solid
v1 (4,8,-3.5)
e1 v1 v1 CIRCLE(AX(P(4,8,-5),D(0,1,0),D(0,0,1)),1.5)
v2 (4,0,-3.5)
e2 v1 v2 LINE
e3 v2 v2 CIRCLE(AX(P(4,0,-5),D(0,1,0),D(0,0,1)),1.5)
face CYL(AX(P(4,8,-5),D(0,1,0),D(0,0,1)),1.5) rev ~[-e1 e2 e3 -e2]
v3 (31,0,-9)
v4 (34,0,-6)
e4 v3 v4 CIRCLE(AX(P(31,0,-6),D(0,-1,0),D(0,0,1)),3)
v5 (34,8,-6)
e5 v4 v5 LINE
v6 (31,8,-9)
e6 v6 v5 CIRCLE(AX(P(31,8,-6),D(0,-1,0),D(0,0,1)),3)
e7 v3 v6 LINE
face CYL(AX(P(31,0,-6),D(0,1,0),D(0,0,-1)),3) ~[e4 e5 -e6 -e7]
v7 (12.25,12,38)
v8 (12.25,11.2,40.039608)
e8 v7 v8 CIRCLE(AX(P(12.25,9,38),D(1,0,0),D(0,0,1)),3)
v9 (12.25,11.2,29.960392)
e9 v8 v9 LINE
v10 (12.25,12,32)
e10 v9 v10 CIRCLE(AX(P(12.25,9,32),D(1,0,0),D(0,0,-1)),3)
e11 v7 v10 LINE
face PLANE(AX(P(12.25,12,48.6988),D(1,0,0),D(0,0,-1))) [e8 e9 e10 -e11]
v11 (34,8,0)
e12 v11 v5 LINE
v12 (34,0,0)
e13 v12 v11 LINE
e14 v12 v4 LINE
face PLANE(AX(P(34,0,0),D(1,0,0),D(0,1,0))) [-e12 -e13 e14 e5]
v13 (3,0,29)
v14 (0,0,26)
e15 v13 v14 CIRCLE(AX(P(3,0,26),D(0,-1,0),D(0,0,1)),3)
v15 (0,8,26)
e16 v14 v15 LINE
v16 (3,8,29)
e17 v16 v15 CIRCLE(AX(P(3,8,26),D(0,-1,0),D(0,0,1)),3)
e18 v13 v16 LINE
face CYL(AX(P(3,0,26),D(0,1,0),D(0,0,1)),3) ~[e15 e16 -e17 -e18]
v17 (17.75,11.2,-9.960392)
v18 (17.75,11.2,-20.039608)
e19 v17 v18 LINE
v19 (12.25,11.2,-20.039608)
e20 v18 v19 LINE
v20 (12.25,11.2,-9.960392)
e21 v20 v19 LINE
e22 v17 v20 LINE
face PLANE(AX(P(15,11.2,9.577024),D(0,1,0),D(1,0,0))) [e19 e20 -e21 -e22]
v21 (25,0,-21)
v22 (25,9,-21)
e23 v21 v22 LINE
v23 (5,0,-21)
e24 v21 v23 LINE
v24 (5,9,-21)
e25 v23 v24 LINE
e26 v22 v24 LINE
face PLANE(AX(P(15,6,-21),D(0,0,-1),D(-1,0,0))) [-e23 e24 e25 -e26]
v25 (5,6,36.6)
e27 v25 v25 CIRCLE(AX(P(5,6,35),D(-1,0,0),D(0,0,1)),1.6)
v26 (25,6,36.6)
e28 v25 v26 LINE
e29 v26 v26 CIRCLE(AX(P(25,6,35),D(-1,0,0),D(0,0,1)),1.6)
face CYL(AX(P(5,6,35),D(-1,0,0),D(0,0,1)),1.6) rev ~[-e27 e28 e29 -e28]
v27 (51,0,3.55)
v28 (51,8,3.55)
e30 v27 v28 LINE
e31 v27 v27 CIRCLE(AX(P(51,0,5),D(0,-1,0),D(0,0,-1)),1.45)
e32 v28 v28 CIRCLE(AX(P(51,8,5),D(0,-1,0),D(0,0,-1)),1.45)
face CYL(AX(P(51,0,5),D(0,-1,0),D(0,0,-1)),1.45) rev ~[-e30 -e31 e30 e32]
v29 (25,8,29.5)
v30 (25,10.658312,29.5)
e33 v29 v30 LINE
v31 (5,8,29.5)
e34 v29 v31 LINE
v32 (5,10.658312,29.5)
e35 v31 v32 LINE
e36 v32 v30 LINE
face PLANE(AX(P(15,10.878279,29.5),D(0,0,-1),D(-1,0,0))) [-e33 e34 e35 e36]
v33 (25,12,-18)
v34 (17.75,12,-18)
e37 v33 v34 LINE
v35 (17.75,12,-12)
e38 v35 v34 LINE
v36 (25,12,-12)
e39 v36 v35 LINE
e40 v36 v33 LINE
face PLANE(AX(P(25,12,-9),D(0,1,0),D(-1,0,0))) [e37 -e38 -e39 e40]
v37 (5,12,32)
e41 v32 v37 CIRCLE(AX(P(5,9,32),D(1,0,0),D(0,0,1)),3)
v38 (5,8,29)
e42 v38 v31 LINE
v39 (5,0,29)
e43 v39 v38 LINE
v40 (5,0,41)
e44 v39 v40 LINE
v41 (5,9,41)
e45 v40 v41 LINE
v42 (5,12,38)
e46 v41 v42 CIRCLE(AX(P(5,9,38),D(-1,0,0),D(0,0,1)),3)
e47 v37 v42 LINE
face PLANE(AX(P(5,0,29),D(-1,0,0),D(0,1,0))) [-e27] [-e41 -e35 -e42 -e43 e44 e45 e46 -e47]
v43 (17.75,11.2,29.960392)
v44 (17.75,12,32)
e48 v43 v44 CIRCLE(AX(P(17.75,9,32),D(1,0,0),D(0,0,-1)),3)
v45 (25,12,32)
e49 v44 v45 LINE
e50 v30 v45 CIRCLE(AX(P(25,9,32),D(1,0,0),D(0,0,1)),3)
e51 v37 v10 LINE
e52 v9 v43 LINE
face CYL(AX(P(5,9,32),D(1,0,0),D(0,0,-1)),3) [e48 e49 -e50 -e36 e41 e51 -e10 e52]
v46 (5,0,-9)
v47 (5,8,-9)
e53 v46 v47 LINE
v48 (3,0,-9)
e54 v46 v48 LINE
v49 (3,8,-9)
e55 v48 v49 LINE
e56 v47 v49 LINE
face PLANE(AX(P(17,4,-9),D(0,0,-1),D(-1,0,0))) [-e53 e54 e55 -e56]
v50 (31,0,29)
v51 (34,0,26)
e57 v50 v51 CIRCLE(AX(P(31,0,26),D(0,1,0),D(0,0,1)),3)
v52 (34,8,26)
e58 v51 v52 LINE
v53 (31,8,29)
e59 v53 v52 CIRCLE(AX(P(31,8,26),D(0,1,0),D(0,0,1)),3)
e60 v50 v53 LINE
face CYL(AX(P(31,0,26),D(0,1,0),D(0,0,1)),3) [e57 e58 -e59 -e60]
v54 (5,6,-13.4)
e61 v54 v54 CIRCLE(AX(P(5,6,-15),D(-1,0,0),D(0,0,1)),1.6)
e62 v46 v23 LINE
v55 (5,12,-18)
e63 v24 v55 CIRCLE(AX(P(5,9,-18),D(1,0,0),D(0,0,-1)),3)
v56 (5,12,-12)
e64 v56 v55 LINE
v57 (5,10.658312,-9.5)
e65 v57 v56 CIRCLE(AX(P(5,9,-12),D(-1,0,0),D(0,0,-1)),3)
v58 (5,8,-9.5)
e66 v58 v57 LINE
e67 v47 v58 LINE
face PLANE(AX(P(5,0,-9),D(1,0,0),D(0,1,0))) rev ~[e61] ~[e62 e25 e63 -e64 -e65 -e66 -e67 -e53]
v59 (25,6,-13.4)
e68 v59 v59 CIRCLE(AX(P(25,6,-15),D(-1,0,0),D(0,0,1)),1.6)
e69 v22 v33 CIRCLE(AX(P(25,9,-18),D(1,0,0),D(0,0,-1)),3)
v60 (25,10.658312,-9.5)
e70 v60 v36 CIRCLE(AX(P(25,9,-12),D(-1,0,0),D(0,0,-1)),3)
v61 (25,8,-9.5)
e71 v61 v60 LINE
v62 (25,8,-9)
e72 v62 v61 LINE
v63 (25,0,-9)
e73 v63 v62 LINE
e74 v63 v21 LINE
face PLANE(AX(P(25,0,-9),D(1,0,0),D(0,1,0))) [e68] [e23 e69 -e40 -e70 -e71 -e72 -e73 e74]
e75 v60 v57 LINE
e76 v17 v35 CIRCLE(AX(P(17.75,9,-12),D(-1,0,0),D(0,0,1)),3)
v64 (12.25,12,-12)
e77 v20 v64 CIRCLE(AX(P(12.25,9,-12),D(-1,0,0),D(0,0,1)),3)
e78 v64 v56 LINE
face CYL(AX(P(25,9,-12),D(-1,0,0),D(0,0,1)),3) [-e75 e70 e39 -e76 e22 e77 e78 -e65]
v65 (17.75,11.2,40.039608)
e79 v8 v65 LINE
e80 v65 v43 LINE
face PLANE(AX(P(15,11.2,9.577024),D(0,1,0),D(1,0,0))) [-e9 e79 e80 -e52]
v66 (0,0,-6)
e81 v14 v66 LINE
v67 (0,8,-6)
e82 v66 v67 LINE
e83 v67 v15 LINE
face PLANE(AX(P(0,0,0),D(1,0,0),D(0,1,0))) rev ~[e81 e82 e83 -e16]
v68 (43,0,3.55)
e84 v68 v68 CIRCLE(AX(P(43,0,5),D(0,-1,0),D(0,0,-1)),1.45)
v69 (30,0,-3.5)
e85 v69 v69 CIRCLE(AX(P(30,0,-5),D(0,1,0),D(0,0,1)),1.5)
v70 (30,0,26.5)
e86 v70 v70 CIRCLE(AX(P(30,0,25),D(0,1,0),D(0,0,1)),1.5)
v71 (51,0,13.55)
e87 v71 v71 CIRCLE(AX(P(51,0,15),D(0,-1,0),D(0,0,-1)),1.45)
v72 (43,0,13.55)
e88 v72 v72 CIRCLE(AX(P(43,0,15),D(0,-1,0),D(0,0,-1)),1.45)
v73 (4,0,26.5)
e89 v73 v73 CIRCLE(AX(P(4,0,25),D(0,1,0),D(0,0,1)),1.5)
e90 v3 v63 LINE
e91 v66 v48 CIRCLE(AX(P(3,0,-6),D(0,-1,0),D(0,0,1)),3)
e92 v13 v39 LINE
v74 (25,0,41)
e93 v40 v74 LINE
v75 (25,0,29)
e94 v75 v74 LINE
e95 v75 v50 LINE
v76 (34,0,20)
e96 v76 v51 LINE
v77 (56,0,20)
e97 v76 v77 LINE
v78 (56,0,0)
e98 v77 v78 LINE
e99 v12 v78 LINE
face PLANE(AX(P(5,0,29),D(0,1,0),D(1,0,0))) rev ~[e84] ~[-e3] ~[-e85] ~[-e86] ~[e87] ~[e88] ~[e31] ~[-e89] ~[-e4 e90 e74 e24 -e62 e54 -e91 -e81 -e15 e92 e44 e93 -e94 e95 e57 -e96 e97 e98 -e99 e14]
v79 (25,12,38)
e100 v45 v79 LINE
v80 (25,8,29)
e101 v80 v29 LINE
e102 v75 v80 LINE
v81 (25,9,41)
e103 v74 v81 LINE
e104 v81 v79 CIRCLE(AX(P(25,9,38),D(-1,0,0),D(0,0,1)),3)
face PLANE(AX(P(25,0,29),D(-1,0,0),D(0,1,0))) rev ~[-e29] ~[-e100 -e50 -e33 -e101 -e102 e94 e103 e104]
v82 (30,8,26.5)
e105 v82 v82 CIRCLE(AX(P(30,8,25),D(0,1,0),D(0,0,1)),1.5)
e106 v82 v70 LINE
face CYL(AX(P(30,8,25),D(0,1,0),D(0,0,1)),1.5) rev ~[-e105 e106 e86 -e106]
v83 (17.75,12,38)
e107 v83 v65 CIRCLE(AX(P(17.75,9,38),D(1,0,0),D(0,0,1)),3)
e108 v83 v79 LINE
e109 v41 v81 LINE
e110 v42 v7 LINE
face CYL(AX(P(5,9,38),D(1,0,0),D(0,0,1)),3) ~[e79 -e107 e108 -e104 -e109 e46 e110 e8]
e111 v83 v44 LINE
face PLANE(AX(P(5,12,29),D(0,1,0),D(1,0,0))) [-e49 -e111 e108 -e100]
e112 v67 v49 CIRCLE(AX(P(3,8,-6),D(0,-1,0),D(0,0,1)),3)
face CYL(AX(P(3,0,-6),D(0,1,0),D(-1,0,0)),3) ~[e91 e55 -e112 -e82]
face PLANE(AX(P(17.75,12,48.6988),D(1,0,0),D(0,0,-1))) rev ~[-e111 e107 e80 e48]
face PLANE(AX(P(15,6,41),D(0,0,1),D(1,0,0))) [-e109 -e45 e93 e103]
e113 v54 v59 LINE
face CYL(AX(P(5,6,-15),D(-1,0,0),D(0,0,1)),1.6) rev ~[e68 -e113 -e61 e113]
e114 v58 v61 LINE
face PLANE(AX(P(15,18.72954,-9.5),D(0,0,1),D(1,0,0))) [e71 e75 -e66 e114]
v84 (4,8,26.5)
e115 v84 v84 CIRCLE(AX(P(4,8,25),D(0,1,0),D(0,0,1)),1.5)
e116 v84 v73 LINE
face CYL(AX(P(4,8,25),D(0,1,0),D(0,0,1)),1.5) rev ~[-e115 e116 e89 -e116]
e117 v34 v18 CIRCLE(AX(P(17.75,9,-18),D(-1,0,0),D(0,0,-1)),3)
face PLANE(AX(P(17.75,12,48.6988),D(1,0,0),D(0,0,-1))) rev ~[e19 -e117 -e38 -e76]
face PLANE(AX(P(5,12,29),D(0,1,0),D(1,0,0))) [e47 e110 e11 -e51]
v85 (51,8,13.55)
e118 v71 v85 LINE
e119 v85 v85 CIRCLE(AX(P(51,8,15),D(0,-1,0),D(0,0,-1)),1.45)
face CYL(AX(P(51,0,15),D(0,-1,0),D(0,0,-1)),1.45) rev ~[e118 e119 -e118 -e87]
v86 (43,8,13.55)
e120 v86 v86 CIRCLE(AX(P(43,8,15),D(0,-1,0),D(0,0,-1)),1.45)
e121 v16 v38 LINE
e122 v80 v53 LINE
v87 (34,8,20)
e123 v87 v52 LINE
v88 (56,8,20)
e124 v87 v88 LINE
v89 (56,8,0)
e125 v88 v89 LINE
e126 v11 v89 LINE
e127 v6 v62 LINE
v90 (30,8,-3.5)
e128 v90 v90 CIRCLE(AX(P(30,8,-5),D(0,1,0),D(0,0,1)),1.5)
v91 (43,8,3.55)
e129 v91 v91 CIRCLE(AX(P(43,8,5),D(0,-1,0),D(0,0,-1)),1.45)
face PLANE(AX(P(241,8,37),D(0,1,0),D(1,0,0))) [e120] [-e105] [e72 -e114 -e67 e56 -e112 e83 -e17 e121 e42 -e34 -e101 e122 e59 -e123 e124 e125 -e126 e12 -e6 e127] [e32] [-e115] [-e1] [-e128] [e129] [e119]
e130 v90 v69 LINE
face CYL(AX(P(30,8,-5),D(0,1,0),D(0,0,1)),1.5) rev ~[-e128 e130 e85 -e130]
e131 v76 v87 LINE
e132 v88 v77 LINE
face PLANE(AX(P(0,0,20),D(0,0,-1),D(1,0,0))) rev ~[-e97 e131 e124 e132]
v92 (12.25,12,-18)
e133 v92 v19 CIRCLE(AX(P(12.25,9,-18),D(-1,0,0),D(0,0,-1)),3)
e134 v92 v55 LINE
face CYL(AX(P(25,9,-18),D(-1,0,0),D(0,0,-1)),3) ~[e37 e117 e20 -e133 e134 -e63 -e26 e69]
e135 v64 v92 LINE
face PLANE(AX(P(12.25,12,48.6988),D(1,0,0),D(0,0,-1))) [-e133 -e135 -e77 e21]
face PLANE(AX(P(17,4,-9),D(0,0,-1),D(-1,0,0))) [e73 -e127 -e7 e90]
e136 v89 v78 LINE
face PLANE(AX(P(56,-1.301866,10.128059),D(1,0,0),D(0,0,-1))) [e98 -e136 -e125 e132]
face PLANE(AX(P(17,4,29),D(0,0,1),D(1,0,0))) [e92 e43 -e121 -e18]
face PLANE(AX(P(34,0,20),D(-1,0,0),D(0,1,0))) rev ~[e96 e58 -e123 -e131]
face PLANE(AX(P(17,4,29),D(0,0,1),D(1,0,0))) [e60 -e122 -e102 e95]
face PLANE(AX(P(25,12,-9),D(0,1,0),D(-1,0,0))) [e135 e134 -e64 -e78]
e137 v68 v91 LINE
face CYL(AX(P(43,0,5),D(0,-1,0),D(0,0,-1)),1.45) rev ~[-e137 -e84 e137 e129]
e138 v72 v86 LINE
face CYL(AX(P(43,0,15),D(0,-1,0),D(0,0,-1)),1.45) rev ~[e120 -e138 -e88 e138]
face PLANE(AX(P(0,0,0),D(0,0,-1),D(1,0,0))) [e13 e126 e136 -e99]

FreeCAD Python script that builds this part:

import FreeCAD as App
import Part
import Sketcher


def edges_at(feature, points):
    """Names of the edges that pass closest to the given points."""
    edges = feature.Shape.Edges
    near = lambda p: min(range(len(edges)), key=lambda i: edges[i].distToShape(Part.Vertex(*p))[0])
    return sorted({f"Edge{near(p) + 1}" for p in points})

doc = App.newDocument("Part")
body = doc.addObject("PartDesign::Body", "Body")

sketch1 = body.newObject("Sketcher::SketchObject", "Sketch")
sketch1.AttachmentSupport = (doc.getObject("XZ_Plane"), [""])
sketch1.MapMode = "FlatFace"
sketch1.addGeometry(Part.LineSegment(App.Vector(0, 0, 0), App.Vector(0, 20, 0)), False)
sketch1.addGeometry(Part.LineSegment(App.Vector(0, 20, 0), App.Vector(300, 20, 0)), False)
sketch1.addGeometry(Part.LineSegment(App.Vector(300, 20, 0), App.Vector(300, 0, 0)), False)
sketch1.addGeometry(Part.LineSegment(App.Vector(300, 0, 0), App.Vector(0, 0, 0)), False)
sketch1.addConstraint(Sketcher.Constraint("Coincident", 0, 2, 1, 1))
sketch1.addConstraint(Sketcher.Constraint("Coincident", 1, 2, 2, 1))
sketch1.addConstraint(Sketcher.Constraint("Coincident", 2, 2, 3, 1))
sketch1.addConstraint(Sketcher.Constraint("Coincident", 3, 2, 0, 1))
sketch1.addConstraint(Sketcher.Constraint("Vertical", 0))
sketch1.addConstraint(Sketcher.Constraint("Horizontal", 1))
sketch1.addConstraint(Sketcher.Constraint("Vertical", 2))
sketch1.addConstraint(Sketcher.Constraint("Horizontal", 3))
sketch1.addConstraint(Sketcher.Constraint("Coincident", 3, 2, -1, 1))
sketch1.addConstraint(Sketcher.Constraint("DistanceX", 1, 1, 1, 2, 300.0))
sketch1.addConstraint(Sketcher.Constraint("DistanceY", 0, 1, 0, 2, 20.0))
pad1 = body.newObject("PartDesign::Pad", "Pad")
pad1.Profile = sketch1
pad1.Length = 8
pad1.Reversed = True

sketch2 = body.newObject("Sketcher::SketchObject", "Sketch001")
sketch2.AttachmentSupport = (doc.getObject("XY_Plane"), [""])
sketch2.MapMode = "FlatFace"
sketch2.AttachmentOffset = App.Placement(App.Vector(0, 0, 20), App.Rotation())
sketch2.addGeometry(Part.LineSegment(App.Vector(0, 8, 0), App.Vector(0, 0, 0)), False)
sketch2.addGeometry(Part.LineSegment(App.Vector(0, 0, 0), App.Vector(34, 0, 0)), False)
sketch2.addGeometry(Part.LineSegment(App.Vector(34, 0, 0), App.Vector(34, 8, 0)), False)
sketch2.addGeometry(Part.LineSegment(App.Vector(34, 8, 0), App.Vector(0, 8, 0)), False)
sketch2.addGeometry(Part.LineSegment(App.Vector(266, 8, 0), App.Vector(266, 0, 0)), False)
sketch2.addGeometry(Part.LineSegment(App.Vector(266, 0, 0), App.Vector(300, 0, 0)), False)
sketch2.addGeometry(Part.LineSegment(App.Vector(300, 0, 0), App.Vector(300, 8, 0)), False)
sketch2.addGeometry(Part.LineSegment(App.Vector(300, 8, 0), App.Vector(266, 8, 0)), False)
sketch2.addConstraint(Sketcher.Constraint("Coincident", 0, 2, 1, 1))
sketch2.addConstraint(Sketcher.Constraint("Coincident", 1, 2, 2, 1))
sketch2.addConstraint(Sketcher.Constraint("Coincident", 2, 2, 3, 1))
sketch2.addConstraint(Sketcher.Constraint("Coincident", 3, 2, 0, 1))
sketch2.addConstraint(Sketcher.Constraint("Coincident", 4, 2, 5, 1))
sketch2.addConstraint(Sketcher.Constraint("Coincident", 5, 2, 6, 1))
sketch2.addConstraint(Sketcher.Constraint("Coincident", 6, 2, 7, 1))
sketch2.addConstraint(Sketcher.Constraint("Coincident", 7, 2, 4, 1))
sketch2.addConstraint(Sketcher.Constraint("Vertical", 0))
sketch2.addConstraint(Sketcher.Constraint("Horizontal", 1))
sketch2.addConstraint(Sketcher.Constraint("Vertical", 2))
sketch2.addConstraint(Sketcher.Constraint("Horizontal", 3))
sketch2.addConstraint(Sketcher.Constraint("Vertical", 4))
sketch2.addConstraint(Sketcher.Constraint("Horizontal", 5))
sketch2.addConstraint(Sketcher.Constraint("Vertical", 6))
sketch2.addConstraint(Sketcher.Constraint("Horizontal", 7))
sketch2.addConstraint(Sketcher.Constraint("Coincident", 0, 2, -1, 1))
sketch2.addConstraint(Sketcher.Constraint("PointOnObject", 4, 2, -1))
sketch2.addConstraint(Sketcher.Constraint("Horizontal", 3, 2, 6, 2))
sketch2.addConstraint(Sketcher.Constraint("Equal", 3, 5))
sketch2.addConstraint(Sketcher.Constraint("DistanceX", 1, 1, 1, 2, 34.0))
sketch2.addConstraint(Sketcher.Constraint("DistanceY", 0, 2, 0, 1, 8.0))
sketch2.addConstraint(Sketcher.Constraint("DistanceX", -1, 1, 4, 2, 266.0))
pad2 = body.newObject("PartDesign::Pad", "Pad001")
pad2.Profile = sketch2
pad2.Length = 9

sketch3 = body.newObject("Sketcher::SketchObject", "Sketch002")
sketch3.AttachmentSupport = (doc.getObject("XY_Plane"), [""])
sketch3.MapMode = "FlatFace"
sketch3.addGeometry(Part.LineSegment(App.Vector(34, 8, 0), App.Vector(34, 0, 0)), False)
sketch3.addGeometry(Part.LineSegment(App.Vector(34, 0, 0), App.Vector(0, 0, 0)), False)
sketch3.addGeometry(Part.LineSegment(App.Vector(0, 0, 0), App.Vector(0, 8, 0)), False)
sketch3.addGeometry(Part.LineSegment(App.Vector(0, 8, 0), App.Vector(34, 8, 0)), False)
sketch3.addGeometry(Part.LineSegment(App.Vector(300, 8, 0), App.Vector(300, 0, 0)), False)
sketch3.addGeometry(Part.LineSegment(App.Vector(300, 0, 0), App.Vector(266, 0, 0)), False)
sketch3.addGeometry(Part.LineSegment(App.Vector(266, 0, 0), App.Vector(266, 8, 0)), False)
sketch3.addGeometry(Part.LineSegment(App.Vector(266, 8, 0), App.Vector(300, 8, 0)), False)
sketch3.addConstraint(Sketcher.Constraint("Coincident", 0, 2, 1, 1))
sketch3.addConstraint(Sketcher.Constraint("Coincident", 1, 2, 2, 1))
sketch3.addConstraint(Sketcher.Constraint("Coincident", 2, 2, 3, 1))
sketch3.addConstraint(Sketcher.Constraint("Coincident", 3, 2, 0, 1))
sketch3.addConstraint(Sketcher.Constraint("Coincident", 4, 2, 5, 1))
sketch3.addConstraint(Sketcher.Constraint("Coincident", 5, 2, 6, 1))
sketch3.addConstraint(Sketcher.Constraint("Coincident", 6, 2, 7, 1))
sketch3.addConstraint(Sketcher.Constraint("Coincident", 7, 2, 4, 1))
sketch3.addConstraint(Sketcher.Constraint("Vertical", 0))
sketch3.addConstraint(Sketcher.Constraint("Horizontal", 1))
sketch3.addConstraint(Sketcher.Constraint("Vertical", 2))
sketch3.addConstraint(Sketcher.Constraint("Horizontal", 3))
sketch3.addConstraint(Sketcher.Constraint("Vertical", 4))
sketch3.addConstraint(Sketcher.Constraint("Horizontal", 5))
sketch3.addConstraint(Sketcher.Constraint("Vertical", 6))
sketch3.addConstraint(Sketcher.Constraint("Horizontal", 7))
sketch3.addConstraint(Sketcher.Constraint("Coincident", 1, 2, -1, 1))
sketch3.addConstraint(Sketcher.Constraint("PointOnObject", 4, 2, -1))
sketch3.addConstraint(Sketcher.Constraint("Horizontal", 3, 2, 6, 2))
sketch3.addConstraint(Sketcher.Constraint("Equal", 3, 5))
sketch3.addConstraint(Sketcher.Constraint("DistanceX", 1, 2, 1, 1, 34.0))
sketch3.addConstraint(Sketcher.Constraint("DistanceY", 0, 2, 0, 1, 8.0))
sketch3.addConstraint(Sketcher.Constraint("DistanceX", -1, 1, 4, 2, 300.0))
pad3 = body.newObject("PartDesign::Pad", "Pad002")
pad3.Profile = sketch3
pad3.Length = 9
pad3.Reversed = True

sketch4 = body.newObject("Sketcher::SketchObject", "Sketch003")
sketch4.AttachmentSupport = (doc.getObject("XZ_Plane"), [""])
sketch4.MapMode = "FlatFace"
sketch4.AttachmentOffset = App.Placement(App.Vector(0, 0, -8), App.Rotation())
sketch4.addGeometry(Part.Circle(App.Vector(4, -5, 0), App.Vector(0, 0, 1), 1.5), False)
sketch4.addGeometry(Part.Circle(App.Vector(30, -5, 0), App.Vector(0, 0, 1), 1.5), False)
sketch4.addGeometry(Part.Circle(App.Vector(30, 25, 0), App.Vector(0, 0, 1), 1.5), False)
sketch4.addGeometry(Part.Circle(App.Vector(4, 25, 0), App.Vector(0, 0, 1), 1.5), False)
sketch4.addGeometry(Part.Circle(App.Vector(296, 25, 0), App.Vector(0, 0, 1), 1.5), False)
sketch4.addGeometry(Part.Circle(App.Vector(296, -5, 0), App.Vector(0, 0, 1), 1.5), False)
sketch4.addGeometry(Part.Circle(App.Vector(270, 25, 0), App.Vector(0, 0, 1), 1.5), False)
sketch4.addGeometry(Part.Circle(App.Vector(270, -5, 0), App.Vector(0, 0, 1), 1.5), False)
sketch4.addConstraint(Sketcher.Constraint("Equal", 0, 1))
sketch4.addConstraint(Sketcher.Constraint("Equal", 1, 2))
sketch4.addConstraint(Sketcher.Constraint("Equal", 2, 3))
sketch4.addConstraint(Sketcher.Constraint("Equal", 3, 4))
sketch4.addConstraint(Sketcher.Constraint("Equal", 4, 5))
sketch4.addConstraint(Sketcher.Constraint("Equal", 5, 6))
sketch4.addConstraint(Sketcher.Constraint("Equal", 6, 7))
sketch4.addConstraint(Sketcher.Constraint("Horizontal", 0, 3, 1, 3))
sketch4.addConstraint(Sketcher.Constraint("Horizontal", 2, 3, 3, 3))
sketch4.addConstraint(Sketcher.Constraint("Horizontal", 3, 3, 4, 3))
sketch4.addConstraint(Sketcher.Constraint("Horizontal", 1, 3, 5, 3))
sketch4.addConstraint(Sketcher.Constraint("Horizontal", 4, 3, 6, 3))
sketch4.addConstraint(Sketcher.Constraint("Horizontal", 5, 3, 7, 3))
sketch4.addConstraint(Sketcher.Constraint("Vertical", 1, 3, 2, 3))
sketch4.addConstraint(Sketcher.Constraint("Vertical", 0, 3, 3, 3))
sketch4.addConstraint(Sketcher.Constraint("Vertical", 4, 3, 5, 3))
sketch4.addConstraint(Sketcher.Constraint("Vertical", 6, 3, 7, 3))
sketch4.addConstraint(Sketcher.Constraint("Diameter", 0, 3.0))
sketch4.addConstraint(Sketcher.Constraint("DistanceX", -1, 1, 0, 3, 4.0))
sketch4.addConstraint(Sketcher.Constraint("DistanceY", 0, 3, -1, 1, 5.0))
sketch4.addConstraint(Sketcher.Constraint("DistanceX", -1, 1, 1, 3, 30.0))
sketch4.addConstraint(Sketcher.Constraint("DistanceY", -1, 1, 2, 3, 25.0))
sketch4.addConstraint(Sketcher.Constraint("DistanceX", -1, 1, 4, 3, 296.0))
sketch4.addConstraint(Sketcher.Constraint("DistanceX", -1, 1, 6, 3, 270.0))
pocket1 = body.newObject("PartDesign::Pocket", "Pocket")
pocket1.Profile = sketch4
pocket1.Type = "ThroughAll"
pocket1.Reversed = True

sketch5 = body.newObject("Sketcher::SketchObject", "Sketch004")
sketch5.AttachmentSupport = (doc.getObject("XY_Plane"), [""])
sketch5.MapMode = "FlatFace"
sketch5.AttachmentOffset = App.Placement(App.Vector(0, 0, 20), App.Rotation())
sketch5.addGeometry(Part.LineSegment(App.Vector(241, 8, 0), App.Vector(241, 0, 0)), False)
sketch5.addGeometry(Part.LineSegment(App.Vector(241, 0, 0), App.Vector(266, 0, 0)), False)
sketch5.addGeometry(Part.LineSegment(App.Vector(266, 0, 0), App.Vector(266, 8, 0)), False)
sketch5.addGeometry(Part.LineSegment(App.Vector(266, 8, 0), App.Vector(241, 8, 0)), False)
sketch5.addConstraint(Sketcher.Constraint("Coincident", 0, 2, 1, 1))
sketch5.addConstraint(Sketcher.Constraint("Coincident", 1, 2, 2, 1))
sketch5.addConstraint(Sketcher.Constraint("Coincident", 2, 2, 3, 1))
sketch5.addConstraint(Sketcher.Constraint("Coincident", 3, 2, 0, 1))
sketch5.addConstraint(Sketcher.Constraint("Vertical", 0))
sketch5.addConstraint(Sketcher.Constraint("Horizontal", 1))
sketch5.addConstraint(Sketcher.Constraint("Vertical", 2))
sketch5.addConstraint(Sketcher.Constraint("Horizontal", 3))
sketch5.addConstraint(Sketcher.Constraint("PointOnObject", 0, 2, -1))
sketch5.addConstraint(Sketcher.Constraint("DistanceX", 1, 1, 1, 2, 25.0))
sketch5.addConstraint(Sketcher.Constraint("DistanceY", 0, 2, 0, 1, 8.0))
sketch5.addConstraint(Sketcher.Constraint("DistanceX", -1, 1, 0, 2, 241.0))
pad4 = body.newObject("PartDesign::Pad", "Pad003")
pad4.Profile = sketch5
pad4.Length = 17

sketch6 = body.newObject("Sketcher::SketchObject", "Sketch005")
sketch6.AttachmentSupport = (doc.getObject("XY_Plane"), [""])
sketch6.MapMode = "FlatFace"
sketch6.addGeometry(Part.LineSegment(App.Vector(266, 8, 0), App.Vector(266, 0, 0)), False)
sketch6.addGeometry(Part.LineSegment(App.Vector(266, 0, 0), App.Vector(241, 0, 0)), False)
sketch6.addGeometry(Part.LineSegment(App.Vector(241, 0, 0), App.Vector(241, 8, 0)), False)
sketch6.addGeometry(Part.LineSegment(App.Vector(241, 8, 0), App.Vector(266, 8, 0)), False)
sketch6.addConstraint(Sketcher.Constraint("Coincident", 0, 2, 1, 1))
sketch6.addConstraint(Sketcher.Constraint("Coincident", 1, 2, 2, 1))
sketch6.addConstraint(Sketcher.Constraint("Coincident", 2, 2, 3, 1))
sketch6.addConstraint(Sketcher.Constraint("Coincident", 3, 2, 0, 1))
sketch6.addConstraint(Sketcher.Constraint("Vertical", 0))
sketch6.addConstraint(Sketcher.Constraint("Horizontal", 1))
sketch6.addConstraint(Sketcher.Constraint("Vertical", 2))
sketch6.addConstraint(Sketcher.Constraint("Horizontal", 3))
sketch6.addConstraint(Sketcher.Constraint("PointOnObject", 0, 2, -1))
sketch6.addConstraint(Sketcher.Constraint("DistanceX", 1, 2, 1, 1, 25.0))
sketch6.addConstraint(Sketcher.Constraint("DistanceY", 0, 2, 0, 1, 8.0))
sketch6.addConstraint(Sketcher.Constraint("DistanceX", -1, 1, 0, 2, 266.0))
pad5 = body.newObject("PartDesign::Pad", "Pad004")
pad5.Profile = sketch6
pad5.Length = 17
pad5.Reversed = True

sketch7 = body.newObject("Sketcher::SketchObject", "Sketch006")
sketch7.AttachmentSupport = (doc.getObject("XZ_Plane"), [""])
sketch7.MapMode = "FlatFace"
sketch7.AttachmentOffset = App.Placement(App.Vector(0, 0, -8), App.Rotation())
sketch7.addGeometry(Part.LineSegment(App.Vector(249, -9, 0), App.Vector(249, 29, 0)), False)
sketch7.addGeometry(Part.LineSegment(App.Vector(249, 29, 0), App.Vector(259, 29, 0)), False)
sketch7.addGeometry(Part.LineSegment(App.Vector(259, 29, 0), App.Vector(259, -9, 0)), False)
sketch7.addGeometry(Part.LineSegment(App.Vector(259, -9, 0), App.Vector(249, -9, 0)), False)
sketch7.addConstraint(Sketcher.Constraint("Coincident", 0, 2, 1, 1))
sketch7.addConstraint(Sketcher.Constraint("Coincident", 1, 2, 2, 1))
sketch7.addConstraint(Sketcher.Constraint("Coincident", 2, 2, 3, 1))
sketch7.addConstraint(Sketcher.Constraint("Coincident", 3, 2, 0, 1))
sketch7.addConstraint(Sketcher.Constraint("Vertical", 0))
sketch7.addConstraint(Sketcher.Constraint("Horizontal", 1))
sketch7.addConstraint(Sketcher.Constraint("Vertical", 2))
sketch7.addConstraint(Sketcher.Constraint("Horizontal", 3))
sketch7.addConstraint(Sketcher.Constraint("DistanceX", 1, 1, 1, 2, 10.0))
sketch7.addConstraint(Sketcher.Constraint("DistanceY", 0, 1, 0, 2, 38.0))
sketch7.addConstraint(Sketcher.Constraint("DistanceX", -1, 1, 0, 2, 249.0))
sketch7.addConstraint(Sketcher.Constraint("DistanceY", -1, 1, 0, 2, 29.0))
pocket2 = body.newObject("PartDesign::Pocket", "Pocket001")
pocket2.Profile = sketch7
pocket2.Type = "ThroughAll"
pocket2.Reversed = True

sketch8 = body.newObject("Sketcher::SketchObject", "Sketch007")
sketch8.AttachmentSupport = (doc.getObject("XZ_Plane"), [""])
sketch8.MapMode = "FlatFace"
sketch8.AttachmentOffset = App.Placement(App.Vector(0, 0, -8), App.Rotation())
sketch8.addGeometry(Part.LineSegment(App.Vector(259, 2, 0), App.Vector(259, 18, 0)), False)
sketch8.addGeometry(Part.LineSegment(App.Vector(259, 18, 0), App.Vector(266, 18, 0)), False)
sketch8.addGeometry(Part.LineSegment(App.Vector(266, 18, 0), App.Vector(266, 2, 0)), False)
sketch8.addGeometry(Part.LineSegment(App.Vector(266, 2, 0), App.Vector(259, 2, 0)), False)
sketch8.addConstraint(Sketcher.Constraint("Coincident", 0, 2, 1, 1))
sketch8.addConstraint(Sketcher.Constraint("Coincident", 1, 2, 2, 1))
sketch8.addConstraint(Sketcher.Constraint("Coincident", 2, 2, 3, 1))
sketch8.addConstraint(Sketcher.Constraint("Coincident", 3, 2, 0, 1))
sketch8.addConstraint(Sketcher.Constraint("Vertical", 0))
sketch8.addConstraint(Sketcher.Constraint("Horizontal", 1))
sketch8.addConstraint(Sketcher.Constraint("Vertical", 2))
sketch8.addConstraint(Sketcher.Constraint("Horizontal", 3))
sketch8.addConstraint(Sketcher.Constraint("DistanceX", 1, 1, 1, 2, 7.0))
sketch8.addConstraint(Sketcher.Constraint("DistanceY", 0, 1, 0, 2, 16.0))
sketch8.addConstraint(Sketcher.Constraint("DistanceX", -1, 1, 0, 2, 259.0))
sketch8.addConstraint(Sketcher.Constraint("DistanceY", -1, 1, 0, 2, 18.0))
pocket3 = body.newObject("PartDesign::Pocket", "Pocket002")
pocket3.Profile = sketch8
pocket3.Length = 4
pocket3.Reversed = True

sketch9 = body.newObject("Sketcher::SketchObject", "Sketch008")
sketch9.AttachmentSupport = (doc.getObject("YZ_Plane"), [""])
sketch9.MapMode = "FlatFace"
sketch9.AttachmentOffset = App.Placement(App.Vector(0, 0, 259), App.Rotation())
sketch9.addGeometry(Part.LineSegment(App.Vector(4, 18, 0), App.Vector(8, 22, 0)), False)
sketch9.addGeometry(Part.LineSegment(App.Vector(8, 22, 0), App.Vector(8, 18, 0)), False)
sketch9.addGeometry(Part.LineSegment(App.Vector(8, 18, 0), App.Vector(4, 18, 0)), False)
sketch9.addGeometry(Part.LineSegment(App.Vector(8, -2, 0), App.Vector(4, 2, 0)), False)
sketch9.addGeometry(Part.LineSegment(App.Vector(4, 2, 0), App.Vector(8, 2, 0)), False)
sketch9.addGeometry(Part.LineSegment(App.Vector(8, 2, 0), App.Vector(8, -2, 0)), False)
sketch9.addConstraint(Sketcher.Constraint("Coincident", 0, 2, 1, 1))
sketch9.addConstraint(Sketcher.Constraint("Coincident", 1, 2, 2, 1))
sketch9.addConstraint(Sketcher.Constraint("Coincident", 2, 2, 0, 1))
sketch9.addConstraint(Sketcher.Constraint("Coincident", 3, 2, 4, 1))
sketch9.addConstraint(Sketcher.Constraint("Coincident", 4, 2, 5, 1))
sketch9.addConstraint(Sketcher.Constraint("Coincident", 5, 2, 3, 1))
sketch9.addConstraint(Sketcher.Constraint("Vertical", 1))
sketch9.addConstraint(Sketcher.Constraint("Horizontal", 2))
sketch9.addConstraint(Sketcher.Constraint("Horizontal", 4))
sketch9.addConstraint(Sketcher.Constraint("Vertical", 5))
sketch9.addConstraint(Sketcher.Constraint("Perpendicular", 0, 3))
sketch9.addConstraint(Sketcher.Constraint("Vertical", 2, 2, 3, 2))
sketch9.addConstraint(Sketcher.Constraint("Vertical", 1, 2, 4, 2))
sketch9.addConstraint(Sketcher.Constraint("Equal", 4, 1))
sketch9.addConstraint(Sketcher.Constraint("DistanceX", 2, 2, 2, 1, 4.0))
sketch9.addConstraint(Sketcher.Constraint("DistanceX", -1, 1, 0, 2, 8.0))
sketch9.addConstraint(Sketcher.Constraint("DistanceY", -1, 1, 0, 2, 22.0))
sketch9.addConstraint(Sketcher.Constraint("DistanceY", -1, 1, 3, 2, 2.0))
pocket4 = body.newObject("PartDesign::Pocket", "Pocket003")
pocket4.Profile = sketch9
pocket4.Length = 7
pocket4.Reversed = True

sketch10 = body.newObject("Sketcher::SketchObject", "Sketch009")
sketch10.AttachmentSupport = (doc.getObject("YZ_Plane"), [""])
sketch10.MapMode = "FlatFace"
sketch10.AttachmentOffset = App.Placement(App.Vector(0, 0, 259), App.Rotation())
sketch10.addGeometry(Part.LineSegment(App.Vector(0, -2, 0), App.Vector(8, -9, 0)), False)
sketch10.addGeometry(Part.LineSegment(App.Vector(8, -9, 0), App.Vector(0, -9, 0)), False)
sketch10.addGeometry(Part.LineSegment(App.Vector(0, -9, 0), App.Vector(0, -2, 0)), False)
sketch10.addGeometry(Part.LineSegment(App.Vector(8, 29, 0), App.Vector(0, 22, 0)), False)
sketch10.addGeometry(Part.LineSegment(App.Vector(0, 22, 0), App.Vector(0, 29, 0)), False)
sketch10.addGeometry(Part.LineSegment(App.Vector(0, 29, 0), App.Vector(8, 29, 0)), False)
sketch10.addConstraint(Sketcher.Constraint("Coincident", 0, 2, 1, 1))
sketch10.addConstraint(Sketcher.Constraint("Coincident", 1, 2, 2, 1))
sketch10.addConstraint(Sketcher.Constraint("Coincident", 2, 2, 0, 1))
sketch10.addConstraint(Sketcher.Constraint("Coincident", 3, 2, 4, 1))
sketch10.addConstraint(Sketcher.Constraint("Coincident", 4, 2, 5, 1))
sketch10.addConstraint(Sketcher.Constraint("Coincident", 5, 2, 3, 1))
sketch10.addConstraint(Sketcher.Constraint("Horizontal", 1))
sketch10.addConstraint(Sketcher.Constraint("Vertical", 2))
sketch10.addConstraint(Sketcher.Constraint("Vertical", 4))
sketch10.addConstraint(Sketcher.Constraint("Horizontal", 5))
sketch10.addConstraint(Sketcher.Constraint("PointOnObject", 1, 2, -2))
sketch10.addConstraint(Sketcher.Constraint("PointOnObject", 3, 2, -2))
sketch10.addConstraint(Sketcher.Constraint("Vertical", 0, 2, 5, 2))
sketch10.addConstraint(Sketcher.Constraint("Equal", 2, 4))
sketch10.addConstraint(Sketcher.Constraint("DistanceX", 1, 2, 1, 1, 8.0))
sketch10.addConstraint(Sketcher.Constraint("DistanceY", 2, 1, 2, 2, 7.0))
sketch10.addConstraint(Sketcher.Constraint("DistanceY", 0, 2, -1, 1, 9.0))
sketch10.addConstraint(Sketcher.Constraint("DistanceY", -1, 1, 3, 2, 22.0))
pad6 = body.newObject("PartDesign::Pad", "Pad005")
pad6.Profile = sketch10
pad6.Length = 10
pad6.Reversed = True

sketch11 = body.newObject("Sketcher::SketchObject", "Sketch010")
sketch11.AttachmentSupport = (doc.getObject("XY_Plane"), [""])
sketch11.MapMode = "FlatFace"
sketch11.AttachmentOffset = App.Placement(App.Vector(0, 0, 37), App.Rotation())
sketch11.addGeometry(Part.LineSegment(App.Vector(241, 8, 0), App.Vector(241, 0, 0)), False)
sketch11.addGeometry(Part.LineSegment(App.Vector(241, 0, 0), App.Vector(249, 0, 0)), False)
sketch11.addGeometry(Part.LineSegment(App.Vector(249, 0, 0), App.Vector(249, 8, 0)), False)
sketch11.addGeometry(Part.LineSegment(App.Vector(249, 8, 0), App.Vector(241, 8, 0)), False)
sketch11.addConstraint(Sketcher.Constraint("Coincident", 0, 2, 1, 1))
sketch11.addConstraint(Sketcher.Constraint("Coincident", 1, 2, 2, 1))
sketch11.addConstraint(Sketcher.Constraint("Coincident", 2, 2, 3, 1))
sketch11.addConstraint(Sketcher.Constraint("Coincident", 3, 2, 0, 1))
sketch11.addConstraint(Sketcher.Constraint("Vertical", 0))
sketch11.addConstraint(Sketcher.Constraint("Horizontal", 1))
sketch11.addConstraint(Sketcher.Constraint("Vertical", 2))
sketch11.addConstraint(Sketcher.Constraint("Horizontal", 3))
sketch11.addConstraint(Sketcher.Constraint("PointOnObject", 0, 2, -1))
sketch11.addConstraint(Sketcher.Constraint("Equal", 3, 0))
sketch11.addConstraint(Sketcher.Constraint("DistanceX", 1, 1, 1, 2, 8.0))
sketch11.addConstraint(Sketcher.Constraint("DistanceX", -1, 1, 0, 2, 241.0))
pad7 = body.newObject("PartDesign::Pad", "Pad006")
pad7.Profile = sketch11
pad7.Length = 17

sketch12 = body.newObject("Sketcher::SketchObject", "Sketch011")
sketch12.AttachmentSupport = (doc.getObject("XZ_Plane"), [""])
sketch12.MapMode = "FlatFace"
sketch12.AttachmentOffset = App.Placement(App.Vector(0, 0, -8), App.Rotation())
sketch12.addGeometry(Part.Circle(App.Vector(245, 50, 0), App.Vector(0, 0, 1), 1.7), False)
sketch12.addGeometry(Part.Circle(App.Vector(245, 18, 0), App.Vector(0, 0, 1), 1.7), False)
sketch12.addConstraint(Sketcher.Constraint("Equal", 0, 1))
sketch12.addConstraint(Sketcher.Constraint("Vertical", 0, 3, 1, 3))
sketch12.addConstraint(Sketcher.Constraint("Diameter", 0, 3.4))
sketch12.addConstraint(Sketcher.Constraint("DistanceX", -1, 1, 0, 3, 245.0))
sketch12.addConstraint(Sketcher.Constraint("DistanceY", -1, 1, 0, 3, 50.0))
sketch12.addConstraint(Sketcher.Constraint("DistanceY", -1, 1, 1, 3, 18.0))
pocket5 = body.newObject("PartDesign::Pocket", "Pocket004")
pocket5.Profile = sketch12
pocket5.Type = "ThroughAll"
pocket5.Reversed = True

sketch13 = body.newObject("Sketcher::SketchObject", "Sketch012")
sketch13.AttachmentSupport = (doc.getObject("XY_Plane"), [""])
sketch13.MapMode = "FlatFace"
sketch13.AttachmentOffset = App.Placement(App.Vector(0, 0, 29), App.Rotation())
sketch13.addGeometry(Part.LineSegment(App.Vector(275, 13, 0), App.Vector(275, 0, 0)), False)
sketch13.addGeometry(Part.LineSegment(App.Vector(275, 0, 0), App.Vector(295, 0, 0)), False)
sketch13.addGeometry(Part.LineSegment(App.Vector(295, 0, 0), App.Vector(295, 13, 0)), False)
sketch13.addGeometry(Part.LineSegment(App.Vector(295, 13, 0), App.Vector(275, 13, 0)), False)
sketch13.addConstraint(Sketcher.Constraint("Coincident", 0, 2, 1, 1))
sketch13.addConstraint(Sketcher.Constraint("Coincident", 1, 2, 2, 1))
sketch13.addConstraint(Sketcher.Constraint("Coincident", 2, 2, 3, 1))
sketch13.addConstraint(Sketcher.Constraint("Coincident", 3, 2, 0, 1))
sketch13.addConstraint(Sketcher.Constraint("Vertical", 0))
sketch13.addConstraint(Sketcher.Constraint("Horizontal", 1))
sketch13.addConstraint(Sketcher.Constraint("Vertical", 2))
sketch13.addConstraint(Sketcher.Constraint("Horizontal", 3))
sketch13.addConstraint(Sketcher.Constraint("PointOnObject", 0, 2, -1))
sketch13.addConstraint(Sketcher.Constraint("DistanceX", 1, 1, 1, 2, 20.0))
sketch13.addConstraint(Sketcher.Constraint("DistanceY", 0, 2, 0, 1, 13.0))
sketch13.addConstraint(Sketcher.Constraint("DistanceX", -1, 1, 0, 2, 275.0))
pad8 = body.newObject("PartDesign::Pad", "Pad007")
pad8.Profile = sketch13
pad8.Length = 12

sketch14 = body.newObject("Sketcher::SketchObject", "Sketch013")
sketch14.AttachmentSupport = (doc.getObject("YZ_Plane"), [""])
sketch14.MapMode = "FlatFace"
sketch14.AttachmentOffset = App.Placement(App.Vector(0, 0, 295), App.Rotation())
sketch14.addGeometry(Part.Circle(App.Vector(8, 35, 0), App.Vector(0, 0, 1), 1.6), False)
sketch14.addConstraint(Sketcher.Constraint("Diameter", 0, 3.2))
sketch14.addConstraint(Sketcher.Constraint("DistanceX", -1, 1, 0, 3, 8.0))
sketch14.addConstraint(Sketcher.Constraint("DistanceY", -1, 1, 0, 3, 35.0))
pocket6 = body.newObject("PartDesign::Pocket", "Pocket005")
pocket6.Profile = sketch14
pocket6.Length = 20

sketch15 = body.newObject("Sketcher::SketchObject", "Sketch014")
sketch15.AttachmentSupport = (doc.getObject("XY_Plane"), [""])
sketch15.MapMode = "FlatFace"
sketch15.AttachmentOffset = App.Placement(App.Vector(0, 0, -9), App.Rotation())
sketch15.addGeometry(Part.LineSegment(App.Vector(295, 13, 0), App.Vector(295, 0, 0)), False)
sketch15.addGeometry(Part.LineSegment(App.Vector(295, 0, 0), App.Vector(275, 0, 0)), False)
sketch15.addGeometry(Part.LineSegment(App.Vector(275, 0, 0), App.Vector(275, 13, 0)), False)
sketch15.addGeometry(Part.LineSegment(App.Vector(275, 13, 0), App.Vector(295, 13, 0)), False)
sketch15.addConstraint(Sketcher.Constraint("Coincident", 0, 2, 1, 1))
sketch15.addConstraint(Sketcher.Constraint("Coincident", 1, 2, 2, 1))
sketch15.addConstraint(Sketcher.Constraint("Coincident", 2, 2, 3, 1))
sketch15.addConstraint(Sketcher.Constraint("Coincident", 3, 2, 0, 1))
sketch15.addConstraint(Sketcher.Constraint("Vertical", 0))
sketch15.addConstraint(Sketcher.Constraint("Horizontal", 1))
sketch15.addConstraint(Sketcher.Constraint("Vertical", 2))
sketch15.addConstraint(Sketcher.Constraint("Horizontal", 3))
sketch15.addConstraint(Sketcher.Constraint("PointOnObject", 0, 2, -1))
sketch15.addConstraint(Sketcher.Constraint("DistanceX", 1, 2, 1, 1, 20.0))
sketch15.addConstraint(Sketcher.Constraint("DistanceY", 0, 2, 0, 1, 13.0))
sketch15.addConstraint(Sketcher.Constraint("DistanceX", -1, 1, 0, 2, 295.0))
pad9 = body.newObject("PartDesign::Pad", "Pad008")
pad9.Profile = sketch15
pad9.Length = 12
pad9.Reversed = True

sketch16 = body.newObject("Sketcher::SketchObject", "Sketch015")
sketch16.AttachmentSupport = (doc.getObject("YZ_Plane"), [""])
sketch16.MapMode = "FlatFace"
sketch16.AttachmentOffset = App.Placement(App.Vector(0, 0, 295), App.Rotation())
sketch16.addGeometry(Part.Circle(App.Vector(8, -15, 0), App.Vector(0, 0, 1), 1.6), False)
sketch16.addConstraint(Sketcher.Constraint("Diameter", 0, 3.2))
sketch16.addConstraint(Sketcher.Constraint("DistanceX", -1, 1, 0, 3, 8.0))
sketch16.addConstraint(Sketcher.Constraint("DistanceY", 0, 3, -1, 1, 15.0))
pocket7 = body.newObject("PartDesign::Pocket", "Pocket006")
pocket7.Profile = sketch16
pocket7.Length = 20

sketch17 = body.newObject("Sketcher::SketchObject", "Sketch016")
sketch17.AttachmentSupport = (doc.getObject("XY_Plane"), [""])
sketch17.MapMode = "FlatFace"
sketch17.AttachmentOffset = App.Placement(App.Vector(0, 0, -9), App.Rotation())
sketch17.addGeometry(Part.LineSegment(App.Vector(25, 12, 0), App.Vector(25, 0, 0)), False)
sketch17.addGeometry(Part.LineSegment(App.Vector(25, 0, 0), App.Vector(5, 0, 0)), False)
sketch17.addGeometry(Part.LineSegment(App.Vector(5, 0, 0), App.Vector(5, 12, 0)), False)
sketch17.addGeometry(Part.LineSegment(App.Vector(5, 12, 0), App.Vector(25, 12, 0)), False)
sketch17.addConstraint(Sketcher.Constraint("Coincident", 0, 2, 1, 1))
sketch17.addConstraint(Sketcher.Constraint("Coincident", 1, 2, 2, 1))
sketch17.addConstraint(Sketcher.Constraint("Coincident", 2, 2, 3, 1))
sketch17.addConstraint(Sketcher.Constraint("Coincident", 3, 2, 0, 1))
sketch17.addConstraint(Sketcher.Constraint("Vertical", 0))
sketch17.addConstraint(Sketcher.Constraint("Horizontal", 1))
sketch17.addConstraint(Sketcher.Constraint("Vertical", 2))
sketch17.addConstraint(Sketcher.Constraint("Horizontal", 3))
sketch17.addConstraint(Sketcher.Constraint("PointOnObject", 0, 2, -1))
sketch17.addConstraint(Sketcher.Constraint("DistanceX", 1, 2, 1, 1, 20.0))
sketch17.addConstraint(Sketcher.Constraint("DistanceY", 0, 2, 0, 1, 12.0))
sketch17.addConstraint(Sketcher.Constraint("DistanceX", -1, 1, 0, 2, 25.0))
pad10 = body.newObject("PartDesign::Pad", "Pad009")
pad10.Profile = sketch17
pad10.Length = 12
pad10.Reversed = True

sketch18 = body.newObject("Sketcher::SketchObject", "Sketch017")
sketch18.AttachmentSupport = (doc.getObject("YZ_Plane"), [""])
sketch18.MapMode = "FlatFace"
sketch18.AttachmentOffset = App.Placement(App.Vector(0, 0, 5), App.Rotation())
sketch18.addGeometry(Part.Circle(App.Vector(6, -15, 0), App.Vector(0, 0, 1), 1.6), False)
sketch18.addConstraint(Sketcher.Constraint("Diameter", 0, 3.2))
sketch18.addConstraint(Sketcher.Constraint("DistanceX", -1, 1, 0, 3, 6.0))
sketch18.addConstraint(Sketcher.Constraint("DistanceY", 0, 3, -1, 1, 15.0))
pocket8 = body.newObject("PartDesign::Pocket", "Pocket007")
pocket8.Profile = sketch18
pocket8.Length = 20
pocket8.Reversed = True

sketch19 = body.newObject("Sketcher::SketchObject", "Sketch018")
sketch19.AttachmentSupport = (doc.getObject("XY_Plane"), [""])
sketch19.MapMode = "FlatFace"
sketch19.AttachmentOffset = App.Placement(App.Vector(0, 0, 29), App.Rotation())
sketch19.addGeometry(Part.LineSegment(App.Vector(5, 12, 0), App.Vector(5, 0, 0)), False)
sketch19.addGeometry(Part.LineSegment(App.Vector(5, 0, 0), App.Vector(25, 0, 0)), False)
sketch19.addGeometry(Part.LineSegment(App.Vector(25, 0, 0), App.Vector(25, 12, 0)), False)
sketch19.addGeometry(Part.LineSegment(App.Vector(25, 12, 0), App.Vector(5, 12, 0)), False)
sketch19.addConstraint(Sketcher.Constraint("Coincident", 0, 2, 1, 1))
sketch19.addConstraint(Sketcher.Constraint("Coincident", 1, 2, 2, 1))
sketch19.addConstraint(Sketcher.Constraint("Coincident", 2, 2, 3, 1))
sketch19.addConstraint(Sketcher.Constraint("Coincident", 3, 2, 0, 1))
sketch19.addConstraint(Sketcher.Constraint("Vertical", 0))
sketch19.addConstraint(Sketcher.Constraint("Horizontal", 1))
sketch19.addConstraint(Sketcher.Constraint("Vertical", 2))
sketch19.addConstraint(Sketcher.Constraint("Horizontal", 3))
sketch19.addConstraint(Sketcher.Constraint("PointOnObject", 0, 2, -1))
sketch19.addConstraint(Sketcher.Constraint("DistanceX", 1, 1, 1, 2, 20.0))
sketch19.addConstraint(Sketcher.Constraint("DistanceY", 0, 2, 0, 1, 12.0))
sketch19.addConstraint(Sketcher.Constraint("DistanceX", -1, 1, 0, 2, 5.0))
pad11 = body.newObject("PartDesign::Pad", "Pad010")
pad11.Profile = sketch19
pad11.Length = 12

sketch20 = body.newObject("Sketcher::SketchObject", "Sketch019")
sketch20.AttachmentSupport = (doc.getObject("YZ_Plane"), [""])
sketch20.MapMode = "FlatFace"
sketch20.AttachmentOffset = App.Placement(App.Vector(0, 0, 5), App.Rotation())
sketch20.addGeometry(Part.Circle(App.Vector(6, 35, 0), App.Vector(0, 0, 1), 1.6), False)
sketch20.addConstraint(Sketcher.Constraint("Diameter", 0, 3.2))
sketch20.addConstraint(Sketcher.Constraint("DistanceX", -1, 1, 0, 3, 6.0))
sketch20.addConstraint(Sketcher.Constraint("DistanceY", -1, 1, 0, 3, 35.0))
pocket9 = body.newObject("PartDesign::Pocket", "Pocket008")
pocket9.Profile = sketch20
pocket9.Length = 20
pocket9.Reversed = True
doc.recompute()

fillet = body.newObject("PartDesign::Fillet", "Fillet")
fillet.Base = (pocket9, edges_at(pocket9, [
    (285, 13, 29),
    (285, 13, 41),
    (285, 13, -9),
    (285, 13, -21),
    (15, 12, -9),
    (15, 12, -21),
    (15, 12, 29),
    (15, 12, 41),
]))
fillet.Radius = 3

sketch21 = body.newObject("Sketcher::SketchObject", "Sketch020")
sketch21.AttachmentSupport = (doc.getObject("YZ_Plane"), [""])
sketch21.MapMode = "FlatFace"
sketch21.AttachmentOffset = App.Placement(App.Vector(0, 0, 300), App.Rotation())
sketch21.addGeometry(Part.LineSegment(App.Vector(35.017742, 72.003453, 0), App.Vector(-37.621475, 72.003453, 0)), False)
sketch21.addGeometry(Part.LineSegment(App.Vector(-37.621475, 72.003453, 0), App.Vector(-37.621475, -51.747335, 0)), False)
sketch21.addGeometry(Part.LineSegment(App.Vector(-37.621475, -51.747335, 0), App.Vector(35.017742, -51.747335, 0)), False)
sketch21.addGeometry(Part.LineSegment(App.Vector(35.017742, -51.747335, 0), App.Vector(35.017742, 72.003453, 0)), False)
sketch21.addConstraint(Sketcher.Constraint("Coincident", 0, 2, 1, 1))
sketch21.addConstraint(Sketcher.Constraint("Coincident", 1, 2, 2, 1))
sketch21.addConstraint(Sketcher.Constraint("Coincident", 2, 2, 3, 1))
sketch21.addConstraint(Sketcher.Constraint("Coincident", 3, 2, 0, 1))
sketch21.addConstraint(Sketcher.Constraint("Horizontal", 0))
sketch21.addConstraint(Sketcher.Constraint("Vertical", 1))
sketch21.addConstraint(Sketcher.Constraint("Horizontal", 2))
sketch21.addConstraint(Sketcher.Constraint("Vertical", 3))
sketch21.addConstraint(Sketcher.Constraint("DistanceY", 1, 2, 1, 1, 123.750788))
sketch21.addConstraint(Sketcher.Constraint("DistanceX", 0, 2, 0, 1, 72.639218))
sketch21.addConstraint(Sketcher.Constraint("DistanceX", 0, 2, -1, 1, 37.621475))
sketch21.addConstraint(Sketcher.Constraint("DistanceY", -1, 1, 0, 2, 72.003453))
pocket10 = body.newObject("PartDesign::Pocket", "Pocket009")
pocket10.Profile = sketch21
pocket10.Length = 244

sketch22 = body.newObject("Sketcher::SketchObject", "Sketch021")
sketch22.AttachmentSupport = (doc.getObject("XZ_Plane"), [""])
sketch22.MapMode = "FlatFace"
sketch22.addGeometry(Part.Circle(App.Vector(51, 5, 0), App.Vector(0, 0, 1), 1.45), False)
sketch22.addGeometry(Part.Circle(App.Vector(51, 15, 0), App.Vector(0, 0, 1), 1.45), False)
sketch22.addGeometry(Part.Circle(App.Vector(43, 5, 0), App.Vector(0, 0, 1), 1.45), False)
sketch22.addGeometry(Part.Circle(App.Vector(43, 15, 0), App.Vector(0, 0, 1), 1.45), False)
sketch22.addConstraint(Sketcher.Constraint("Equal", 0, 1))
sketch22.addConstraint(Sketcher.Constraint("Equal", 1, 2))
sketch22.addConstraint(Sketcher.Constraint("Equal", 2, 3))
sketch22.addConstraint(Sketcher.Constraint("Horizontal", 0, 3, 2, 3))
sketch22.addConstraint(Sketcher.Constraint("Horizontal", 1, 3, 3, 3))
sketch22.addConstraint(Sketcher.Constraint("Vertical", 0, 3, 1, 3))
sketch22.addConstraint(Sketcher.Constraint("Vertical", 2, 3, 3, 3))
sketch22.addConstraint(Sketcher.Constraint("Diameter", 0, 2.9))
sketch22.addConstraint(Sketcher.Constraint("DistanceX", -1, 1, 0, 3, 51.0))
sketch22.addConstraint(Sketcher.Constraint("DistanceY", -1, 1, 0, 3, 5.0))
sketch22.addConstraint(Sketcher.Constraint("DistanceY", -1, 1, 1, 3, 15.0))
sketch22.addConstraint(Sketcher.Constraint("DistanceX", -1, 1, 2, 3, 43.0))
pocket11 = body.newObject("PartDesign::Pocket", "Pocket010")
pocket11.Profile = sketch22
pocket11.Type = "ThroughAll"
doc.recompute()

fillet2 = body.newObject("PartDesign::Fillet", "Fillet001")
fillet2.Base = (pocket11, edges_at(pocket11, [
    (0, 4, 29),
    (34, 4, 29),
    (0, 4, -9),
    (34, 4, -9),
]))
fillet2.Radius = 3

sketch23 = body.newObject("Sketcher::SketchObject", "Sketch022")
sketch23.AttachmentSupport = (doc.getObject("XZ_Plane"), [""])
sketch23.MapMode = "FlatFace"
sketch23.AttachmentOffset = App.Placement(App.Vector(0, 0, -12), App.Rotation())
sketch23.addGeometry(Part.LineSegment(App.Vector(12.25, -29.544752, 0), App.Vector(12.25, 48.6988, 0)), False)
sketch23.addGeometry(Part.LineSegment(App.Vector(12.25, 48.6988, 0), App.Vector(17.75, 48.6988, 0)), False)
sketch23.addGeometry(Part.LineSegment(App.Vector(17.75, 48.6988, 0), App.Vector(17.75, -29.544752, 0)), False)
sketch23.addGeometry(Part.LineSegment(App.Vector(17.75, -29.544752, 0), App.Vector(12.25, -29.544752, 0)), False)
sketch23.addConstraint(Sketcher.Constraint("Coincident", 0, 2, 1, 1))
sketch23.addConstraint(Sketcher.Constraint("Coincident", 1, 2, 2, 1))
sketch23.addConstraint(Sketcher.Constraint("Coincident", 2, 2, 3, 1))
sketch23.addConstraint(Sketcher.Constraint("Coincident", 3, 2, 0, 1))
sketch23.addConstraint(Sketcher.Constraint("Vertical", 0))
sketch23.addConstraint(Sketcher.Constraint("Horizontal", 1))
sketch23.addConstraint(Sketcher.Constraint("Vertical", 2))
sketch23.addConstraint(Sketcher.Constraint("Horizontal", 3))
sketch23.addConstraint(Sketcher.Constraint("DistanceX", 1, 1, 1, 2, 5.5))
sketch23.addConstraint(Sketcher.Constraint("DistanceX", -1, 1, 0, 2, 12.25))
sketch23.addConstraint(Sketcher.Constraint("DistanceY", 0, 1, 0, 2, 78.243552))
sketch23.addConstraint(Sketcher.Constraint("DistanceY", -1, 1, 0, 2, 48.6988))
pocket12 = body.newObject("PartDesign::Pocket", "Pocket011")
pocket12.Profile = sketch23
pocket12.Length = 0.8
pocket12.Reversed = True

sketch24 = body.newObject("Sketcher::SketchObject", "Sketch023")
sketch24.AttachmentSupport = (doc.getObject("XY_Plane"), [""])
sketch24.MapMode = "FlatFace"
sketch24.AttachmentOffset = App.Placement(App.Vector(0, 0, 29), App.Rotation())
sketch24.addGeometry(Part.LineSegment(App.Vector(25, 13.756558, 0), App.Vector(25, 8, 0)), False)
sketch24.addGeometry(Part.LineSegment(App.Vector(25, 8, 0), App.Vector(5, 8, 0)), False)
sketch24.addGeometry(Part.LineSegment(App.Vector(5, 8, 0), App.Vector(5, 13.756558, 0)), False)
sketch24.addGeometry(Part.LineSegment(App.Vector(5, 13.756558, 0), App.Vector(25, 13.756558, 0)), False)
sketch24.addConstraint(Sketcher.Constraint("Coincident", 0, 2, 1, 1))
sketch24.addConstraint(Sketcher.Constraint("Coincident", 1, 2, 2, 1))
sketch24.addConstraint(Sketcher.Constraint("Coincident", 2, 2, 3, 1))
sketch24.addConstraint(Sketcher.Constraint("Coincident", 3, 2, 0, 1))
sketch24.addConstraint(Sketcher.Constraint("Vertical", 0))
sketch24.addConstraint(Sketcher.Constraint("Horizontal", 1))
sketch24.addConstraint(Sketcher.Constraint("Vertical", 2))
sketch24.addConstraint(Sketcher.Constraint("Horizontal", 3))
sketch24.addConstraint(Sketcher.Constraint("DistanceX", 1, 2, 1, 1, 20.0))
sketch24.addConstraint(Sketcher.Constraint("DistanceX", -1, 1, 0, 2, 25.0))
sketch24.addConstraint(Sketcher.Constraint("DistanceY", -1, 1, 0, 2, 8.0))
sketch24.addConstraint(Sketcher.Constraint("DistanceY", 0, 2, 0, 1, 5.756558))
pocket13 = body.newObject("PartDesign::Pocket", "Pocket012")
pocket13.Profile = sketch24
pocket13.Length = 0.5
pocket13.Reversed = True

sketch25 = body.newObject("Sketcher::SketchObject", "Sketch024")
sketch25.AttachmentSupport = (doc.getObject("XY_Plane"), [""])
sketch25.MapMode = "FlatFace"
sketch25.AttachmentOffset = App.Placement(App.Vector(0, 0, -9), App.Rotation())
sketch25.addGeometry(Part.LineSegment(App.Vector(5, 29.45908, 0), App.Vector(5, 8, 0)), False)
sketch25.addGeometry(Part.LineSegment(App.Vector(5, 8, 0), App.Vector(25, 8, 0)), False)
sketch25.addGeometry(Part.LineSegment(App.Vector(25, 8, 0), App.Vector(25, 29.45908, 0)), False)
sketch25.addGeometry(Part.LineSegment(App.Vector(25, 29.45908, 0), App.Vector(5, 29.45908, 0)), False)
sketch25.addConstraint(Sketcher.Constraint("Coincident", 0, 2, 1, 1))
sketch25.addConstraint(Sketcher.Constraint("Coincident", 1, 2, 2, 1))
sketch25.addConstraint(Sketcher.Constraint("Coincident", 2, 2, 3, 1))
sketch25.addConstraint(Sketcher.Constraint("Coincident", 3, 2, 0, 1))
sketch25.addConstraint(Sketcher.Constraint("Vertical", 0))
sketch25.addConstraint(Sketcher.Constraint("Horizontal", 1))
sketch25.addConstraint(Sketcher.Constraint("Vertical", 2))
sketch25.addConstraint(Sketcher.Constraint("Horizontal", 3))
sketch25.addConstraint(Sketcher.Constraint("DistanceX", 1, 1, 1, 2, 20.0))
sketch25.addConstraint(Sketcher.Constraint("DistanceX", -1, 1, 0, 2, 5.0))
sketch25.addConstraint(Sketcher.Constraint("DistanceY", -1, 1, 0, 2, 8.0))
sketch25.addConstraint(Sketcher.Constraint("DistanceY", 0, 2, 0, 1, 21.45908))
pocket14 = body.newObject("PartDesign::Pocket", "Pocket013")
pocket14.Profile = sketch25
pocket14.Length = 0.5

doc.recompute()
